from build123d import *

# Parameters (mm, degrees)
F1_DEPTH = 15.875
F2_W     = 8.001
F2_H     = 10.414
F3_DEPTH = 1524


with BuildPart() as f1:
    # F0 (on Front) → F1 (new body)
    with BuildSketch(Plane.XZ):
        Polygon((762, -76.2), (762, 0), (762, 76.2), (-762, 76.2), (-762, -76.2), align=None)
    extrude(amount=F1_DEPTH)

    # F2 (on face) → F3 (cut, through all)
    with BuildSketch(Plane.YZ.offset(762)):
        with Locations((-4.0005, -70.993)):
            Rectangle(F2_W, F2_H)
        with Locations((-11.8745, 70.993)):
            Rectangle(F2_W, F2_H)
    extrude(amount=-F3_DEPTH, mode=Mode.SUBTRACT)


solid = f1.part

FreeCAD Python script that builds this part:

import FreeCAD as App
import Part
import Sketcher
from FreeCAD import Vector
Q = App.Units.Quantity

doc = App.newDocument("Part")
body = doc.addObject("PartDesign::Body", "Body")

# Sketch on XZ plane
sketch1 = body.newObject("Sketcher::SketchObject", "Sketch")
sketch1.AttachmentSupport = (doc.getObject("XZ_Plane"), [""])
sketch1.MapMode = "FlatFace"
sketch1.addGeometry([
    Part.LineSegment(Vector(762, -76.2, 0), Vector(762, 76.2, 0)),
    Part.LineSegment(Vector(762, 76.2, 0), Vector(-762, 76.2, 0)),
    Part.LineSegment(Vector(-762, 76.2, 0), Vector(-762, -76.2, 0)),
    Part.LineSegment(Vector(-762, -76.2, 0), Vector(762, -76.2, 0)),
], False)
sketch1.addConstraint([
    Sketcher.Constraint("Coincident", 0, 2, 1, 1),
    Sketcher.Constraint("Coincident", 1, 2, 2, 1),
    Sketcher.Constraint("Coincident", 2, 2, 3, 1),
    Sketcher.Constraint("Coincident", 3, 2, 0, 1),
    Sketcher.Constraint("Vertical", 0),
    Sketcher.Constraint("Horizontal", 1),
    Sketcher.Constraint("Vertical", 2),
    Sketcher.Constraint("Horizontal", 3),
    Sketcher.Constraint("Symmetric", 0, 2, 2, 2, -1, 1),
    Sketcher.Constraint("DistanceX", 1, 2, 1, 1, Q("60 in")),
    Sketcher.Constraint("DistanceY", 0, 1, 0, 2, Q("6 in")),
])
pad1 = body.newObject("PartDesign::Pad", "Pad")
pad1.Profile = sketch1
pad1.Length = Q("0.625 in")

# Sketch on YZ plane
sketch2 = body.newObject("Sketcher::SketchObject", "Sketch001")
sketch2.AttachmentSupport = (doc.getObject("YZ_Plane"), [""])
sketch2.MapMode = "FlatFace"
sketch2.AttachmentOffset = App.Placement(Vector(0, 0, 30 * 25.4), App.Rotation())
sketch2.addGeometry([
    Part.LineSegment(Vector(-8.001, -65.786, 0), Vector(-8.001, -76.2, 0)),  # 0
    Part.LineSegment(Vector(-8.001, -76.2, 0), Vector(0, -76.2, 0)),  # 1
    Part.LineSegment(Vector(0, -76.2, 0), Vector(0, -65.786, 0)),  # 2
    Part.LineSegment(Vector(0, -65.786, 0), Vector(-8.001, -65.786, 0)),  # 3
    Part.LineSegment(Vector(-15.875, 76.2, 0), Vector(-15.875, 65.786, 0)),  # 4
    Part.LineSegment(Vector(-15.875, 65.786, 0), Vector(-7.874, 65.786, 0)),  # 5
    Part.LineSegment(Vector(-7.874, 65.786, 0), Vector(-7.874, 76.2, 0)),  # 6
    Part.LineSegment(Vector(-7.874, 76.2, 0), Vector(-15.875, 76.2, 0)),  # 7
], False)
sketch2.addConstraint([
    Sketcher.Constraint("Coincident", 0, 2, 1, 1),
    Sketcher.Constraint("Coincident", 1, 2, 2, 1),
    Sketcher.Constraint("Coincident", 2, 2, 3, 1),
    Sketcher.Constraint("Coincident", 3, 2, 0, 1),
    Sketcher.Constraint("Coincident", 4, 2, 5, 1),
    Sketcher.Constraint("Coincident", 5, 2, 6, 1),
    Sketcher.Constraint("Coincident", 6, 2, 7, 1),
    Sketcher.Constraint("Coincident", 7, 2, 4, 1),
    Sketcher.Constraint("Vertical", 0),
    Sketcher.Constraint("Horizontal", 1),
    Sketcher.Constraint("Vertical", 2),
    Sketcher.Constraint("Horizontal", 3),
    Sketcher.Constraint("Vertical", 4),
    Sketcher.Constraint("Horizontal", 5),
    Sketcher.Constraint("Vertical", 6),
    Sketcher.Constraint("Horizontal", 7),
    Sketcher.Constraint("PointOnObject", 1, 2, -2),
    Sketcher.Constraint("Equal", 3, 5),
    Sketcher.Constraint("Equal", 2, 4),
    Sketcher.Constraint("DistanceY", 0, 2, -1, 1, Q("3 in")),
    Sketcher.Constraint("DistanceY", -1, 1, 6, 2, Q("3 in")),
    Sketcher.Constraint("DistanceY", 0, 2, 0, 1, Q("0.41 in")),
    Sketcher.Constraint("DistanceX", 1, 1, 1, 2, Q("0.315 in")),
    Sketcher.Constraint("DistanceX", 5, 2, -1, 1, Q("0.31 in")),
])
pocket1 = body.newObject("PartDesign::Pocket", "Pocket")
pocket1.Profile = sketch2
pocket1.Type = "ThroughAll"

doc.recompute()
